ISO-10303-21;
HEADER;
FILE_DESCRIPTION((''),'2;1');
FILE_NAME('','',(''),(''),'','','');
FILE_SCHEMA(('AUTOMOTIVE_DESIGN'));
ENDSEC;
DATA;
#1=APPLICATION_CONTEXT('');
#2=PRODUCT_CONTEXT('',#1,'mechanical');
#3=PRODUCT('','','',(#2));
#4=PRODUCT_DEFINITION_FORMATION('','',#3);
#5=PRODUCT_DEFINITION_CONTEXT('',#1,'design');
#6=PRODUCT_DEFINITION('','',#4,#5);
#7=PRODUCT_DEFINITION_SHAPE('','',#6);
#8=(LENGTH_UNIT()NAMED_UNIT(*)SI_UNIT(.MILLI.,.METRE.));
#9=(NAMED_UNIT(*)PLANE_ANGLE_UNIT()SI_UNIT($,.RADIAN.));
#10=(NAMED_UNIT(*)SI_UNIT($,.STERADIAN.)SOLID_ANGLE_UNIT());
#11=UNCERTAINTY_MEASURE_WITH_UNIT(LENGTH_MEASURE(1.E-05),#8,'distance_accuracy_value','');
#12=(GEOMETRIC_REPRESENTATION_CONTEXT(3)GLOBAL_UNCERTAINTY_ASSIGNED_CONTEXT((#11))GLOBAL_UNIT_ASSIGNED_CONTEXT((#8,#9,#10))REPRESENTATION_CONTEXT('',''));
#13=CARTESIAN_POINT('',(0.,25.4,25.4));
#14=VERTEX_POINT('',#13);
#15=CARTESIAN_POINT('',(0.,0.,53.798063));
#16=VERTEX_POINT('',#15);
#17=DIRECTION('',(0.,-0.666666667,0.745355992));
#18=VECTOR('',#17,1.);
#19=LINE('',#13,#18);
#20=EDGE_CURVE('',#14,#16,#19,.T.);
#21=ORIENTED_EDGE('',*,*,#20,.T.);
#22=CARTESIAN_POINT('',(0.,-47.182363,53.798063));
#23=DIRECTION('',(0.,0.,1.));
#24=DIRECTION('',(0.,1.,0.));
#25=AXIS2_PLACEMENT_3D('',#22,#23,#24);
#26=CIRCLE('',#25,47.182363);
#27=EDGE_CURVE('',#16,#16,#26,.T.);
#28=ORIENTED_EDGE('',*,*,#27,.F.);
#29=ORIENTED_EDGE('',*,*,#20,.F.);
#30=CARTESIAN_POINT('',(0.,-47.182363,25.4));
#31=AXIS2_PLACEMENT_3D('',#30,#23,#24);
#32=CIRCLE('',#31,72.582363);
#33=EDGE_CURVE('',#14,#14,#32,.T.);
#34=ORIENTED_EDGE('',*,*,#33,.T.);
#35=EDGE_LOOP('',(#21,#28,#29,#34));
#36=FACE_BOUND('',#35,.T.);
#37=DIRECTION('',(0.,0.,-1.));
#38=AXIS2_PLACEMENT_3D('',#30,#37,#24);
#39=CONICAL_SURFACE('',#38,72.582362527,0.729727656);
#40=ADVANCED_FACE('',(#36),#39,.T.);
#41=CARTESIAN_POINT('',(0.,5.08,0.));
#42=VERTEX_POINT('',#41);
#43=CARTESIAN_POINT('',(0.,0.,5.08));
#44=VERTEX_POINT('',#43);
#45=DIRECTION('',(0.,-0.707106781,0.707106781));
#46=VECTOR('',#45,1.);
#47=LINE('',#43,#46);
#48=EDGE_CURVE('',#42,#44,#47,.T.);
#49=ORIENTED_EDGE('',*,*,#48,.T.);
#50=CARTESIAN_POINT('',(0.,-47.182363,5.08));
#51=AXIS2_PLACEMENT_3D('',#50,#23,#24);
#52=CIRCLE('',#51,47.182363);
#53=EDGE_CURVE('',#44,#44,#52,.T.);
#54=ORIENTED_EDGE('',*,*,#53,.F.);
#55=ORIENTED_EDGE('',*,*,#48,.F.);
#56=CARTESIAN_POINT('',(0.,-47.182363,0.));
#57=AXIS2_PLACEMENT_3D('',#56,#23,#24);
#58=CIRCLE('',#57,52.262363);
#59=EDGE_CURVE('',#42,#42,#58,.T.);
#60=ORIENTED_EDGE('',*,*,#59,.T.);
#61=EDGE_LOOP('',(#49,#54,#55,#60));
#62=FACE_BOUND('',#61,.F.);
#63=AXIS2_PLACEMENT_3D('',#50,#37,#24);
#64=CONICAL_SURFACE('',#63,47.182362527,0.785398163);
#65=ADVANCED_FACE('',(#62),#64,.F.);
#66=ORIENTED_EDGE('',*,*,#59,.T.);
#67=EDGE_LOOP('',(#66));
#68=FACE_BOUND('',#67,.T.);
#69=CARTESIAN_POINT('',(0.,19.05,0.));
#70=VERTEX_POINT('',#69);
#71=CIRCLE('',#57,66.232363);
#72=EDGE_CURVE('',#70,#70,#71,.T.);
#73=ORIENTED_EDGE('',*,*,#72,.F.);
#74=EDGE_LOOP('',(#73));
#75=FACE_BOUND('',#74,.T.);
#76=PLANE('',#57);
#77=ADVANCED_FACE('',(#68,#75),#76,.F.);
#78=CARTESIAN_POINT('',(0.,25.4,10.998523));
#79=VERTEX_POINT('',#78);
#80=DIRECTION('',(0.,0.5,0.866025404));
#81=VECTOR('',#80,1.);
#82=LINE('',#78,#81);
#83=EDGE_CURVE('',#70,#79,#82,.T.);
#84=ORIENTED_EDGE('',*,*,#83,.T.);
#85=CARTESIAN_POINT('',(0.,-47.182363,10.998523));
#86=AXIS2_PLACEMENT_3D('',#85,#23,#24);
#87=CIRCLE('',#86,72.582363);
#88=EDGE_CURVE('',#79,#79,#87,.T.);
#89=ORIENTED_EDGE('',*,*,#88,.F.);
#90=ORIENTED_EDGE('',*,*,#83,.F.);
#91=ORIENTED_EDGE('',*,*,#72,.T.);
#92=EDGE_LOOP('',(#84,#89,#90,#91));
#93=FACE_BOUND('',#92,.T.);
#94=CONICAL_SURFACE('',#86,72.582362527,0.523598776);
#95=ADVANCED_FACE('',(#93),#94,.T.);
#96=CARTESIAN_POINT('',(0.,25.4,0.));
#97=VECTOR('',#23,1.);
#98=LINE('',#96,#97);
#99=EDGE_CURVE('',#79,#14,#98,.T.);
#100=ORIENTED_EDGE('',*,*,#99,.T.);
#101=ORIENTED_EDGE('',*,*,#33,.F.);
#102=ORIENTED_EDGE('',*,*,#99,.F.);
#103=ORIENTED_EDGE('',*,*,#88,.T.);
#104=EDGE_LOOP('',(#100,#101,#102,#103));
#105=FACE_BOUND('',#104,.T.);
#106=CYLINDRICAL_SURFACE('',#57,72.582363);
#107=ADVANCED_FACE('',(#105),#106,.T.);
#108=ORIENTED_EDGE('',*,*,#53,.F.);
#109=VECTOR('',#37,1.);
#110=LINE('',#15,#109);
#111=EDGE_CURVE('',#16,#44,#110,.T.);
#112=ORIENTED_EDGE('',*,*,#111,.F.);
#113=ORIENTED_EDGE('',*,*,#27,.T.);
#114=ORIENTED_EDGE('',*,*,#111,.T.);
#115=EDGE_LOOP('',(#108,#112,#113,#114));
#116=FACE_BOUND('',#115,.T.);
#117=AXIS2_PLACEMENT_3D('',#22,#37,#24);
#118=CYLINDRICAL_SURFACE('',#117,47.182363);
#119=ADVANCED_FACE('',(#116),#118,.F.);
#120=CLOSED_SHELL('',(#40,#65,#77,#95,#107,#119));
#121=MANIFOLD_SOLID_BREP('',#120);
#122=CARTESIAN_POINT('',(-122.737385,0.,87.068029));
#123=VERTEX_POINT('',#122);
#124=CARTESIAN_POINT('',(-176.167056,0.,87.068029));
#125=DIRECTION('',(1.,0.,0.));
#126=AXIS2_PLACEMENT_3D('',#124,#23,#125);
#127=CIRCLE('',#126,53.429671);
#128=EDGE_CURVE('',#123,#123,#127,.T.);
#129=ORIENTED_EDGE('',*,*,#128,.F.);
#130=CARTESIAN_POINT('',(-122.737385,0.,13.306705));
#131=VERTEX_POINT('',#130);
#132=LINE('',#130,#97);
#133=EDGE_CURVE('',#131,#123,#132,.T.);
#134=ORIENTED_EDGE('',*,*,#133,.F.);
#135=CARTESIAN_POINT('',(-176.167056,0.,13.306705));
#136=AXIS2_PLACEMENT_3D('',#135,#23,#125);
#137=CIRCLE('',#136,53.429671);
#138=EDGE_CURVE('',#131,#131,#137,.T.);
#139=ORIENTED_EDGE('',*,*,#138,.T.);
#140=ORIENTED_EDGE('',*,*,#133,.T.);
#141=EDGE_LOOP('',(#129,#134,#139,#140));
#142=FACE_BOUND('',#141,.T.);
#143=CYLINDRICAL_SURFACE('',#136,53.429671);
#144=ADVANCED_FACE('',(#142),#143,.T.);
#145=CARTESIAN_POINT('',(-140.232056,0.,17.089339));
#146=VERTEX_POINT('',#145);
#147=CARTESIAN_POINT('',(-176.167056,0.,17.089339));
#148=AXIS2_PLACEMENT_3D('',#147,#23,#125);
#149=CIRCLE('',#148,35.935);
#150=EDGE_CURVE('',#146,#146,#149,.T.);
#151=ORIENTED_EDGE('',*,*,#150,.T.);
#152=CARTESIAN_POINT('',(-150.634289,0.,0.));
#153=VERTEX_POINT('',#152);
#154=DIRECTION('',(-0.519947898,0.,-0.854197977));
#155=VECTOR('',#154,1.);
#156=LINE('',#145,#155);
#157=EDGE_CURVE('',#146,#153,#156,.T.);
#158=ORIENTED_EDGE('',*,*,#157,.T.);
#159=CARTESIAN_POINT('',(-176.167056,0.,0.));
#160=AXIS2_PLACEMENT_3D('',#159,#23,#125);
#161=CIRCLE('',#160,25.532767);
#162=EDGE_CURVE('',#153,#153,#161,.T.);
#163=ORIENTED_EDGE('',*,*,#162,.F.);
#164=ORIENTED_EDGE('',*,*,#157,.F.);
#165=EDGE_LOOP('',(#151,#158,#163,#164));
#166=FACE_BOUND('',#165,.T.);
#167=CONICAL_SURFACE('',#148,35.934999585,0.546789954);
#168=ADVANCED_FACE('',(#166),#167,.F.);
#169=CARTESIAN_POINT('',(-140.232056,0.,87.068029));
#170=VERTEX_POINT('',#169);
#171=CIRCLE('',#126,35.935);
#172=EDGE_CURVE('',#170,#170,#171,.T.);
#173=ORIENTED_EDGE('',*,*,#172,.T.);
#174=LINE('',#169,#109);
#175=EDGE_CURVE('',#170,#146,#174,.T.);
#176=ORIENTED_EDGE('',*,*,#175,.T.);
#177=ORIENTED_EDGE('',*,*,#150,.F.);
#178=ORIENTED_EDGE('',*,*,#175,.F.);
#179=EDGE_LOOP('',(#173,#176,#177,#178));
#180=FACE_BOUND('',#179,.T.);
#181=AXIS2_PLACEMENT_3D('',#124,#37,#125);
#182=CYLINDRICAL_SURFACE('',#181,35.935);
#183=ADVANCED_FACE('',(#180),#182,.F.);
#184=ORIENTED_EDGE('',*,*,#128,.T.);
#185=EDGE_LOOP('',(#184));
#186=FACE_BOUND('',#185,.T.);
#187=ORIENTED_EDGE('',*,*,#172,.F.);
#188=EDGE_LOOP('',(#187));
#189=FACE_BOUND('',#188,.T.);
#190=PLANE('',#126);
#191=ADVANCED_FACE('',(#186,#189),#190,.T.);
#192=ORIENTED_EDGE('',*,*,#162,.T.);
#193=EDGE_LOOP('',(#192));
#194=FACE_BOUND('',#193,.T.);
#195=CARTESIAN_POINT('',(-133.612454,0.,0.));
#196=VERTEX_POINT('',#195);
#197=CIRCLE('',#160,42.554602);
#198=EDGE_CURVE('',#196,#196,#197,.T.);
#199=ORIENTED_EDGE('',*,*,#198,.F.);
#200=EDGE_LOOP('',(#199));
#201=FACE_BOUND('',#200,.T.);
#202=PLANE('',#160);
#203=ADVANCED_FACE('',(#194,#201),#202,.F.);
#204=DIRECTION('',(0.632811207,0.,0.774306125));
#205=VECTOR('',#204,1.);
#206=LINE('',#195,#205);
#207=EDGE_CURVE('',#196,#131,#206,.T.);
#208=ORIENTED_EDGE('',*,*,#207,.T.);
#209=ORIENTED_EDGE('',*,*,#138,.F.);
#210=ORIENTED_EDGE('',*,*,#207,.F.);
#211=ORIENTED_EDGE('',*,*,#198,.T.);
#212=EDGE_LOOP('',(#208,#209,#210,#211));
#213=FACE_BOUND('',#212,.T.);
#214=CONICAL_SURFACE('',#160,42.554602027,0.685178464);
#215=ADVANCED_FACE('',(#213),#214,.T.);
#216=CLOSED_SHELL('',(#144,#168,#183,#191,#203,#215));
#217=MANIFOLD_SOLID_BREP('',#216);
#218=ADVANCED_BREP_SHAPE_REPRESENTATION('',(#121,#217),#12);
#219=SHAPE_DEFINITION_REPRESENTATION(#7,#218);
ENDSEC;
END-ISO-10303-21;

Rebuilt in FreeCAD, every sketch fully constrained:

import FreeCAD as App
import Part
import Sketcher

V = App.Vector
Q = App.Units.Quantity


def edges_at(feature, points):
    """Names of the edges that pass closest to the given points."""
    edges = feature.Shape.Edges
    near = lambda p: min(range(len(edges)), key=lambda i: edges[i].distToShape(Part.Vertex(*p))[0])
    return sorted({f"Edge{near(p) + 1}" for p in points})


def add_polygon(sketch, points):
    """Adds a closed chain of lines whose ends are joined by coincident constraints."""
    first, n = sketch.GeometryCount, len(points)
    for a, b in zip(points, points[1:] + points[:1]):
        sketch.addGeometry(Part.LineSegment(App.Vector(*a, 0), App.Vector(*b, 0)), False)
    for i in range(n):
        sketch.addConstraint(Sketcher.Constraint("Coincident", first + i, 2, first + (i + 1) % n, 1))

doc = App.newDocument("Part")
body = doc.addObject("PartDesign::Body", "Body")

# Sketch on YZ plane
sketch1 = body.newObject("Sketcher::SketchObject", "Sketch")
sketch1.AttachmentSupport = (doc.getObject("YZ_Plane"), [""])
sketch1.MapMode = "FlatFace"
add_polygon(sketch1, [(0, 0), (25.4, 0), (25.4, 25.4), (0, 53.798063)])  # lines 0-3
sketch1.addGeometry(Part.LineSegment(V(-47.182363, 0, 0), V(-47.182363, 53.798063, 0)), True)  # axis
sketch1.addConstraint([
    Sketcher.Constraint("Horizontal", 0),
    Sketcher.Constraint("Vertical", 1),
    Sketcher.Constraint("Vertical", 3),
    Sketcher.Constraint("Vertical", 4),
    Sketcher.Constraint("Coincident", 3, 2, -1, 1),
    Sketcher.Constraint("PointOnObject", 4, 1, -1),
    Sketcher.Constraint("Horizontal", 2, 2, 4, 2),
    Sketcher.Constraint("Equal", 0, 1),
    Sketcher.Constraint("DistanceX", 0, 1, 0, 2, Q("1 in")),
    Sketcher.Constraint("Distance", 2, Q("1.5 in")),
    Sketcher.Constraint("DistanceX", 4, 1, -1, 1, 47.182363),
])
revolution = body.newObject("PartDesign::Revolution", "Revolution")
revolution.Profile = sketch1
revolution.ReferenceAxis = (sketch1, ["Axis0"])
revolution.Angle = 360
doc.recompute()

chamfer = body.newObject("PartDesign::Chamfer", "Chamfer")
chamfer.Base = (revolution, edges_at(revolution, [(0, -119.765, 0)]))
chamfer.ChamferType = "Two distances"
chamfer.Size = Q("0.25 in")
chamfer.Size2 = 10.998523
doc.recompute()

chamfer2 = body.newObject("PartDesign::Chamfer", "Chamfer001")
chamfer2.Base = (chamfer, edges_at(chamfer, [(0, -94.365, 0)]))
chamfer2.ChamferType = "Two distances"
chamfer2.Size = Q("0.2 in")
chamfer2.Size2 = Q("0.2 in")
body2 = doc.addObject("PartDesign::Body", "Body001")

# Sketch on XZ plane
sketch2 = body2.newObject("Sketcher::SketchObject", "Sketch001")
sketch2.AttachmentSupport = (doc.getObject("XZ_Plane001"), [""])
sketch2.MapMode = "FlatFace"
add_polygon(sketch2, [(-140.232056, 17.089339), (-150.634289, 0), (-133.612454, 0), (-122.737385, 13.306705), (-122.737385, 87.068029), (-140.232056, 87.068029)])  # lines 0-5
sketch2.addGeometry(Part.LineSegment(V(-176.167056, 0, 0), V(-176.167056, 87.068029, 0)), True)  # axis
sketch2.addConstraint([
    Sketcher.Constraint("Horizontal", 1),
    Sketcher.Constraint("Vertical", 3),
    Sketcher.Constraint("Horizontal", 4),
    Sketcher.Constraint("Vertical", 5),
    Sketcher.Constraint("Vertical", 6),
    Sketcher.Constraint("PointOnObject", 0, 2, -1),
    Sketcher.Constraint("PointOnObject", 6, 1, -1),
    Sketcher.Constraint("Horizontal", 4, 2, 6, 2),
    Sketcher.Constraint("DistanceX", 4, 2, 4, 1, 17.494671),
    Sketcher.Constraint("DistanceY", 5, 2, 5, 1, 69.97869),
    Sketcher.Constraint("DistanceY", 6, 1, 6, 2, 87.068029),
    Sketcher.Constraint("DistanceX", 6, 1, 5, 2, 35.935),
    Sketcher.Constraint("Distance", 2, 17.185329),
    Sketcher.Constraint("DistanceX", 1, 1, 1, 2, 17.021835),
    Sketcher.Constraint("DistanceY", 3, 1, 3, 2, 73.761323),
    Sketcher.Constraint("DistanceX", 0, 2, -1, 1, 150.634289),
])
revolution2 = body2.newObject("PartDesign::Revolution", "Revolution001")
revolution2.Profile = sketch2
revolution2.ReferenceAxis = (sketch2, ["Axis0"])
revolution2.Angle = 360

doc.recompute()
